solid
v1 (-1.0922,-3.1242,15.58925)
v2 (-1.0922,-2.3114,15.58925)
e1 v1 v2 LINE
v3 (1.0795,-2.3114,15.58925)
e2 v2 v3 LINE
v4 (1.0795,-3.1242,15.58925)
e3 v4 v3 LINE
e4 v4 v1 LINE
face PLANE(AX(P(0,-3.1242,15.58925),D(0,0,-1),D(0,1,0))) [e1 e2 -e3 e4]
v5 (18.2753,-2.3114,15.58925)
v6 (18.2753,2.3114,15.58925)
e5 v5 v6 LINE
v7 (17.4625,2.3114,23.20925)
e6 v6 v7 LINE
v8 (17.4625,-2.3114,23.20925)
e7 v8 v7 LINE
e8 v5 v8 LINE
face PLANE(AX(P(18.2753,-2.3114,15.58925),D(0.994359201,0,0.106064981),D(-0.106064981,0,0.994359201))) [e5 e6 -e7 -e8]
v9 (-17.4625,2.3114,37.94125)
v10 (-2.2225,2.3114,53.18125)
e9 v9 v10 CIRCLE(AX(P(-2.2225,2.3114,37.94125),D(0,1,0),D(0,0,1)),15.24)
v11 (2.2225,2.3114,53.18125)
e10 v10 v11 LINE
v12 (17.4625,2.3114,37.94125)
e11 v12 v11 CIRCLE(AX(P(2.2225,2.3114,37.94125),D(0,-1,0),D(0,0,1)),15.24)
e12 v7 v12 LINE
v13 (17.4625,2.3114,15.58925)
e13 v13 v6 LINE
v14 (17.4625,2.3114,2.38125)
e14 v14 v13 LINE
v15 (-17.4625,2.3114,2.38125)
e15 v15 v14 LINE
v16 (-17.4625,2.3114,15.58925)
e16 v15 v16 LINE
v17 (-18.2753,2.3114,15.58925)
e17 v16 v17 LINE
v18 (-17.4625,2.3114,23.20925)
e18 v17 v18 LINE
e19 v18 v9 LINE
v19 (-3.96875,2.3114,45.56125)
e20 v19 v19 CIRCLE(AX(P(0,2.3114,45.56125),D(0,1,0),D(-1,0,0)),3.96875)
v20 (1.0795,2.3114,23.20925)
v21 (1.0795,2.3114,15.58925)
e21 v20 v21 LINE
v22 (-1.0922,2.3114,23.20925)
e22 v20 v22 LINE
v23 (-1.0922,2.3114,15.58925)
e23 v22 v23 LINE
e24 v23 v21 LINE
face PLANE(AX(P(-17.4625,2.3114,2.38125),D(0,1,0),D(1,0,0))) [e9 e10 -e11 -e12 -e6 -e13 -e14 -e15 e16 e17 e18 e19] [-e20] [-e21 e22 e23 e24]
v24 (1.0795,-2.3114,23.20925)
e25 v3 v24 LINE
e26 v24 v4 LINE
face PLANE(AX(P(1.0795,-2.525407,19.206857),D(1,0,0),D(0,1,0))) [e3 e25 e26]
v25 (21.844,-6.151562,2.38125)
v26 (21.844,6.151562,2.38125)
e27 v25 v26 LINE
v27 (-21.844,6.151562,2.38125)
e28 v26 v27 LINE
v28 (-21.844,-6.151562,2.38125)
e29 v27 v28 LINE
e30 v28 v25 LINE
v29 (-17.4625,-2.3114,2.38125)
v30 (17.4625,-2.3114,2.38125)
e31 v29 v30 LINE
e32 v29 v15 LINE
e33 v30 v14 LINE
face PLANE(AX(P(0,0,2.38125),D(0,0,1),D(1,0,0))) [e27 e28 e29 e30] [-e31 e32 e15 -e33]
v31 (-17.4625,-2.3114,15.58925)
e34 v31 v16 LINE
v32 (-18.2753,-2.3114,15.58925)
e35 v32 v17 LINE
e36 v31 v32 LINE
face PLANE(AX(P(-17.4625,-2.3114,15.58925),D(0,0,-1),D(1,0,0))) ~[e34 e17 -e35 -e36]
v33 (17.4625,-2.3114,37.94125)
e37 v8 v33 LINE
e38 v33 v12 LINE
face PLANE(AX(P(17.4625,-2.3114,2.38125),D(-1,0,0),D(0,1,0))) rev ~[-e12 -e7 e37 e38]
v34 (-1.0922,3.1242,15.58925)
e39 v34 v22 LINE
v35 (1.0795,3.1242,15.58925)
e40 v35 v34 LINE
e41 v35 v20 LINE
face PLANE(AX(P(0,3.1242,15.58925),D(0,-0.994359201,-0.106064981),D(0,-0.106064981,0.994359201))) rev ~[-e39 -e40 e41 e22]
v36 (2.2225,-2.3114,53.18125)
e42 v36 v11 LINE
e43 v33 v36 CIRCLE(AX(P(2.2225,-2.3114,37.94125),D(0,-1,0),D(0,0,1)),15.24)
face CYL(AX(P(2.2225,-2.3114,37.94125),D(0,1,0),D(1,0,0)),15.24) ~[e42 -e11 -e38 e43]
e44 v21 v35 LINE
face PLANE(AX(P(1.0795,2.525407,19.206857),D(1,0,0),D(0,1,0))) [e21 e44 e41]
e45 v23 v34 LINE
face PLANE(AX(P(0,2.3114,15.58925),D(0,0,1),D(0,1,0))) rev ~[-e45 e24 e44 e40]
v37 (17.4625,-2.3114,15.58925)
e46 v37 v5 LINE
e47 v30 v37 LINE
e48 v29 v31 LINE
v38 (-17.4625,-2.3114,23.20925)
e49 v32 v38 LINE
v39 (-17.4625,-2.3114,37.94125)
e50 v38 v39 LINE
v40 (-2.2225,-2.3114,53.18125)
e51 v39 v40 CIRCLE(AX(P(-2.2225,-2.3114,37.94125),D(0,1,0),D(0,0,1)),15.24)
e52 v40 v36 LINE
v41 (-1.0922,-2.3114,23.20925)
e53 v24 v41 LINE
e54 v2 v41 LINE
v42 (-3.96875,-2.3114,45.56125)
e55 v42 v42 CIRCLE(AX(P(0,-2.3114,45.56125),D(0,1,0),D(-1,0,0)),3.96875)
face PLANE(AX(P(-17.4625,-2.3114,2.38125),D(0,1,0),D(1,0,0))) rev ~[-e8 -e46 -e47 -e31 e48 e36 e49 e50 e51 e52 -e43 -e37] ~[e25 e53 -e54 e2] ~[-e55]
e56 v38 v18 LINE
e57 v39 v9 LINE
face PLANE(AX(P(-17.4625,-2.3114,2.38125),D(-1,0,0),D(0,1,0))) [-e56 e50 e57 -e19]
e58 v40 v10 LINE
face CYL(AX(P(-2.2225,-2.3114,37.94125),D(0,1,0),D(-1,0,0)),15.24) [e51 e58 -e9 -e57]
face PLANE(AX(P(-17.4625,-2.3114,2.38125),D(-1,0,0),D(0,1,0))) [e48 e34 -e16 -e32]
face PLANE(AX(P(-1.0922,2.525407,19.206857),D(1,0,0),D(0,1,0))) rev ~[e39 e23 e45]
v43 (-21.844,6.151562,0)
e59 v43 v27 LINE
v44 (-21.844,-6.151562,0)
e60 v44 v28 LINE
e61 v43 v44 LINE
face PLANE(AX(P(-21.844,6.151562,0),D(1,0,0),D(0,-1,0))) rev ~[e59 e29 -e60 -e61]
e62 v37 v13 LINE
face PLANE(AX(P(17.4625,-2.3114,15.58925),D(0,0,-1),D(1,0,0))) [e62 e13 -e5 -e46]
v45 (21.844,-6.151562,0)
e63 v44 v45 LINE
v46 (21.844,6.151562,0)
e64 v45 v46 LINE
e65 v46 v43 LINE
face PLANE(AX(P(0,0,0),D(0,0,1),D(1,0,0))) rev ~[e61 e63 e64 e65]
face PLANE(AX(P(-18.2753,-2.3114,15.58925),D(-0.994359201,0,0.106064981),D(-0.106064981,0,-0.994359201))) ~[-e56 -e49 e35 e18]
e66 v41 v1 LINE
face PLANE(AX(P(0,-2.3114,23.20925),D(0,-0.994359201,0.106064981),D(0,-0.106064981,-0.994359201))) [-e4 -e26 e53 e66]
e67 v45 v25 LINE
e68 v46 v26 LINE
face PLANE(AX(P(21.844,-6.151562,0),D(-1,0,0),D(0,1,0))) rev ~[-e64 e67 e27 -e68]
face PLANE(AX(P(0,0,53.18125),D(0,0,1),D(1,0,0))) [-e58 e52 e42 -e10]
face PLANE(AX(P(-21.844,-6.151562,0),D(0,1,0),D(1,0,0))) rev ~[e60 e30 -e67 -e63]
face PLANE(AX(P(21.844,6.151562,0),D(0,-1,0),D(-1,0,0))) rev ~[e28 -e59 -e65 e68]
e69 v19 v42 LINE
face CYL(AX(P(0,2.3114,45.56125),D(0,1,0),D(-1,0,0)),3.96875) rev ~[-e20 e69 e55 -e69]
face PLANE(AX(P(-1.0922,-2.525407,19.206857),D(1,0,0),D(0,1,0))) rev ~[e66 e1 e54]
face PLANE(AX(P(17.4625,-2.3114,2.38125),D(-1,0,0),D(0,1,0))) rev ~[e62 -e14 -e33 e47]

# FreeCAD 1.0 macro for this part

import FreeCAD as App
import Part
import Sketcher
Q = App.Units.Quantity


def edges_at(feature, points):
    """Names of the edges that pass closest to the given points."""
    edges = feature.Shape.Edges
    near = lambda p: min(range(len(edges)), key=lambda i: edges[i].distToShape(Part.Vertex(*p))[0])
    return sorted({f"Edge{near(p) + 1}" for p in points})

doc = App.newDocument("Part")
body = doc.addObject("PartDesign::Body", "Body")

sketch1 = body.newObject("Sketcher::SketchObject", "Sketch")
sketch1.AttachmentSupport = (doc.getObject("XY_Plane"), [""])
sketch1.MapMode = "FlatFace"
sketch1.addGeometry([
    Part.LineSegment(App.Vector(-22, -6, 0), App.Vector(22, -6, 0)),
    Part.LineSegment(App.Vector(22, -6, 0), App.Vector(22, 6, 0)),
    Part.LineSegment(App.Vector(22, 6, 0), App.Vector(-22, 6, 0)),
    Part.LineSegment(App.Vector(-22, 6, 0), App.Vector(-22, -6, 0)),
], False)
sketch1.addConstraint([
    Sketcher.Constraint("Coincident", 0, 2, 1, 1),
    Sketcher.Constraint("Coincident", 1, 2, 2, 1),
    Sketcher.Constraint("Coincident", 2, 2, 3, 1),
    Sketcher.Constraint("Coincident", 3, 2, 0, 1),
    Sketcher.Constraint("Horizontal", 0),
    Sketcher.Constraint("Vertical", 1),
    Sketcher.Constraint("Horizontal", 2),
    Sketcher.Constraint("Vertical", 3),
    Sketcher.Constraint("Symmetric", 0, 2, 2, 2, -1, 1),
    Sketcher.Constraint("DistanceX", 0, 1, 0, 2, Q("1.72 in")),
    Sketcher.Constraint("DistanceY", 1, 1, 1, 2, Q("0.484375 in")),
])
pad1 = body.newObject("PartDesign::Pad", "Pad")
pad1.Profile = sketch1
pad1.Length = Q("0.09375 in")

sketch2 = body.newObject("Sketcher::SketchObject", "Sketch001")
sketch2.AttachmentSupport = (doc.getObject("XY_Plane"), [""])
sketch2.MapMode = "FlatFace"
sketch2.AttachmentOffset = App.Placement(App.Vector(0, 0, 0.09375 * 25.4), App.Rotation())
sketch2.addGeometry([
    Part.LineSegment(App.Vector(-17.5, 2.3, 0), App.Vector(-17.5, -2.3, 0)),
    Part.LineSegment(App.Vector(-17.5, -2.3, 0), App.Vector(17.5, -2.3, 0)),
    Part.LineSegment(App.Vector(17.5, -2.3, 0), App.Vector(17.5, 2.3, 0)),
    Part.LineSegment(App.Vector(17.5, 2.3, 0), App.Vector(-17.5, 2.3, 0)),
], False)
sketch2.addConstraint([
    Sketcher.Constraint("Coincident", 0, 2, 1, 1),
    Sketcher.Constraint("Coincident", 1, 2, 2, 1),
    Sketcher.Constraint("Coincident", 2, 2, 3, 1),
    Sketcher.Constraint("Coincident", 3, 2, 0, 1),
    Sketcher.Constraint("Vertical", 0),
    Sketcher.Constraint("Horizontal", 1),
    Sketcher.Constraint("Vertical", 2),
    Sketcher.Constraint("Horizontal", 3),
    Sketcher.Constraint("Symmetric", 0, 2, 2, 2, -1, 1),
    Sketcher.Constraint("DistanceX", 1, 1, 1, 2, Q("1.375 in")),
    Sketcher.Constraint("DistanceY", 0, 2, 0, 1, Q("0.182 in")),
])
pad2 = body.newObject("PartDesign::Pad", "Pad001")
pad2.Profile = sketch2
pad2.Length = Q("2 in")
doc.recompute()

fillet = body.newObject("PartDesign::Fillet", "Fillet")
fillet.Base = (pad2, edges_at(pad2, [(-17.462, 0, 53.181), (17.462, 0, 53.181)]))
fillet.Radius = Q("0.6 in")

sketch3 = body.newObject("Sketcher::SketchObject", "Sketch002")
sketch3.AttachmentSupport = (doc.getObject("XZ_Plane"), [""])
sketch3.MapMode = "FlatFace"
sketch3.AttachmentOffset = App.Placement(App.Vector(0, 0, -0.091 * 25.4), App.Rotation())
sketch3.addGeometry(Part.Circle(App.Vector(0, 45.6, 0), App.Vector(0, 0, 1), 4), False)
sketch3.addConstraint([
    Sketcher.Constraint("PointOnObject", 0, 3, -2),
    Sketcher.Constraint("Diameter", 0, Q("0.3125 in")),
    Sketcher.Constraint("DistanceY", -1, 1, 0, 3, 45.56125),
])
pocket1 = body.newObject("PartDesign::Pocket", "Pocket")
pocket1.Profile = sketch3
pocket1.Type = "ThroughAll"
pocket1.Reversed = True

sketch4 = body.newObject("Sketcher::SketchObject", "Sketch003")
sketch4.AttachmentSupport = (doc.getObject("XZ_Plane"), [""])
sketch4.MapMode = "FlatFace"
sketch4.AttachmentOffset = App.Placement(App.Vector(0, 0, 0.091 * 25.4), App.Rotation())
sketch4.addGeometry([
    Part.LineSegment(App.Vector(18.3, 15.6, 0), App.Vector(17.5, 23.2, 0)),
    Part.LineSegment(App.Vector(17.5, 23.2, 0), App.Vector(17.5, 15.6, 0)),
    Part.LineSegment(App.Vector(17.5, 15.6, 0), App.Vector(18.3, 15.6, 0)),
], False)
sketch4.addConstraint([
    Sketcher.Constraint("Coincident", 0, 2, 1, 1),
    Sketcher.Constraint("Coincident", 1, 2, 2, 1),
    Sketcher.Constraint("Coincident", 2, 2, 0, 1),
    Sketcher.Constraint("Vertical", 1),
    Sketcher.Constraint("Horizontal", 2),
    Sketcher.Constraint("DistanceY", 1, 2, 1, 1, Q("0.3 in")),
    Sketcher.Constraint("DistanceX", 2, 1, 2, 2, Q("0.032 in")),
    Sketcher.Constraint("DistanceX", -1, 1, 0, 2, Q("0.6875 in")),
    Sketcher.Constraint("DistanceY", -1, 1, 0, 2, 23.20925),
])
pad3 = body.newObject("PartDesign::Pad", "Pad002")
pad3.Profile = sketch4
pad3.Length = Q("0.182 in")
pad3.Reversed = True
body2 = doc.addObject("PartDesign::Body", "Body001")
doc.recompute()

body2.BaseFeature = body
doc.recompute()

mirroring = doc.addObject("Part::Mirroring", "Mirroring")
mirroring.Source = body
mirroring.Base = App.Vector(0, 0, 0)
mirroring.Normal = App.Vector(1, 0, 0)
body3 = doc.addObject("PartDesign::Body", "Body002")
body3.BaseFeature = mirroring
boolean = body2.newObject("PartDesign::Boolean", "Boolean")
boolean.Type = "Fuse"
boolean.addObjects([body3])
doc.recompute()

sketch5 = body2.newObject("Sketcher::SketchObject", "Sketch004")
sketch5.AttachmentSupport = (doc.getObject("YZ_Plane001"), [""])
sketch5.MapMode = "FlatFace"
sketch5.addGeometry([
    Part.LineSegment(App.Vector(-3.1, 15.6, 0), App.Vector(-2.3, 15.6, 0)),
    Part.LineSegment(App.Vector(-2.3, 15.6, 0), App.Vector(-2.3, 23.2, 0)),
    Part.LineSegment(App.Vector(-2.3, 23.2, 0), App.Vector(-3.1, 15.6, 0)),
    Part.LineSegment(App.Vector(3.1, 15.6, 0), App.Vector(2.3, 23.2, 0)),
    Part.LineSegment(App.Vector(2.3, 23.2, 0), App.Vector(2.3, 15.6, 0)),
    Part.LineSegment(App.Vector(2.3, 15.6, 0), App.Vector(3.1, 15.6, 0)),
], False)
sketch5.addConstraint([
    Sketcher.Constraint("Coincident", 0, 2, 1, 1),
    Sketcher.Constraint("Coincident", 1, 2, 2, 1),
    Sketcher.Constraint("Coincident", 2, 2, 0, 1),
    Sketcher.Constraint("Coincident", 3, 2, 4, 1),
    Sketcher.Constraint("Coincident", 4, 2, 5, 1),
    Sketcher.Constraint("Coincident", 5, 2, 3, 1),
    Sketcher.Constraint("Horizontal", 0),
    Sketcher.Constraint("Vertical", 1),
    Sketcher.Constraint("Vertical", 4),
    Sketcher.Constraint("Horizontal", 5),
    Sketcher.Constraint("Symmetric", 1, 2, 3, 2, -2),
    Sketcher.Constraint("Symmetric", 2, 2, 5, 2, -2),
    Sketcher.Constraint("DistanceY", 1, 1, 1, 2, Q("0.3 in")),
    Sketcher.Constraint("DistanceX", 0, 1, 0, 2, Q("0.032 in")),
    Sketcher.Constraint("DistanceX", 0, 2, -1, 1, Q("0.091 in")),
    Sketcher.Constraint("DistanceY", -1, 1, 0, 2, 15.58925),
])
pad4 = body2.newObject("PartDesign::Pad", "Pad003")
pad4.Profile = sketch5
pad4.Type = "TwoLengths"
pad4.Length = Q("0.0425 in")
pad4.Length2 = Q("0.043 in")
mirroring.Visibility = False

doc.recompute()
